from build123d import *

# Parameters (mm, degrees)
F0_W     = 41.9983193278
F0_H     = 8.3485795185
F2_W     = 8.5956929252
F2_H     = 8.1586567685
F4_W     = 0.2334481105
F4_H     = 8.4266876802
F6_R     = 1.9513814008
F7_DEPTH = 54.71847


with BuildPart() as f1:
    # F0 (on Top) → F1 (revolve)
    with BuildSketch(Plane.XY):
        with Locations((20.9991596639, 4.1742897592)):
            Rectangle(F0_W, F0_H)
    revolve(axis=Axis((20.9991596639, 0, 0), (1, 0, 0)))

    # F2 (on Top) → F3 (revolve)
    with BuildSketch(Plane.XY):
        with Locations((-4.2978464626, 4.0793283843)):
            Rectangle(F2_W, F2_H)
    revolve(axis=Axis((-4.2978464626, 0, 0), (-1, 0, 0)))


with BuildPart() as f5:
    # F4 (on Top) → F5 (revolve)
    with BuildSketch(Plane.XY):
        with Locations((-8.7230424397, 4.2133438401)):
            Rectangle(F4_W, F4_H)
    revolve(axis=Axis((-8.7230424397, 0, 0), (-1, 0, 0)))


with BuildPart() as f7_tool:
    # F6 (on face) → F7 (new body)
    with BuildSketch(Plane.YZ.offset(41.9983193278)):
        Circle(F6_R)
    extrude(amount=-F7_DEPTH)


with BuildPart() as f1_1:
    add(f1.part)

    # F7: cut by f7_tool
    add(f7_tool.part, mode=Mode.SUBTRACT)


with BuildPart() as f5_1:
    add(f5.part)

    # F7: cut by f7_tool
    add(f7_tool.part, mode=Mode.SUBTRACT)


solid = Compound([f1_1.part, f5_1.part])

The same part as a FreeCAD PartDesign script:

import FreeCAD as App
import Part
import Sketcher


def add_polygon(sketch, points):
    """Adds a closed chain of lines whose ends are joined by coincident constraints."""
    first, n = sketch.GeometryCount, len(points)
    for a, b in zip(points, points[1:] + points[:1]):
        sketch.addGeometry(Part.LineSegment(App.Vector(*a, 0), App.Vector(*b, 0)), False)
    for i in range(n):
        sketch.addConstraint(Sketcher.Constraint("Coincident", first + i, 2, first + (i + 1) % n, 1))

doc = App.newDocument("Part")
body = doc.addObject("PartDesign::Body", "Body")

sketch1 = body.newObject("Sketcher::SketchObject", "Sketch")
sketch1.AttachmentSupport = (doc.getObject("XY_Plane"), [""])
sketch1.MapMode = "FlatFace"
add_polygon(sketch1, [(0, 8.34858), (0, 0), (41.998319, 0), (41.998319, 8.34858)])
sketch1.addConstraint(Sketcher.Constraint("Vertical", 0))
sketch1.addConstraint(Sketcher.Constraint("Horizontal", 1))
sketch1.addConstraint(Sketcher.Constraint("Vertical", 2))
sketch1.addConstraint(Sketcher.Constraint("Horizontal", 3))
sketch1.addConstraint(Sketcher.Constraint("Coincident", 0, 2, -1, 1))
sketch1.addConstraint(Sketcher.Constraint("DistanceX", 1, 1, 1, 2, 41.998319))
sketch1.addConstraint(Sketcher.Constraint("DistanceY", 0, 2, 0, 1, 8.34858))
revolution = body.newObject("PartDesign::Revolution", "Revolution")
revolution.Profile = sketch1
revolution.ReferenceAxis = (sketch1, ["H_Axis"])
revolution.Angle = 360

sketch2 = body.newObject("Sketcher::SketchObject", "Sketch001")
sketch2.AttachmentSupport = (doc.getObject("XY_Plane"), [""])
sketch2.MapMode = "FlatFace"
add_polygon(sketch2, [(-8.595693, 8.158657), (-8.595693, 0), (0, 0), (0, 8.158657)])
sketch2.addConstraint(Sketcher.Constraint("Vertical", 0))
sketch2.addConstraint(Sketcher.Constraint("Horizontal", 1))
sketch2.addConstraint(Sketcher.Constraint("Vertical", 2))
sketch2.addConstraint(Sketcher.Constraint("Horizontal", 3))
sketch2.addConstraint(Sketcher.Constraint("Coincident", 1, 2, -1, 1))
sketch2.addConstraint(Sketcher.Constraint("DistanceX", 1, 1, 1, 2, 8.595693))
sketch2.addConstraint(Sketcher.Constraint("DistanceY", 0, 2, 0, 1, 8.158657))
revolution2 = body.newObject("PartDesign::Revolution", "Revolution001")
revolution2.Profile = sketch2
revolution2.ReferenceAxis = (sketch2, ["H_Axis"])
revolution2.Angle = 360
body2 = doc.addObject("PartDesign::Body", "Body001")

sketch3 = body2.newObject("Sketcher::SketchObject", "Sketch002")
sketch3.AttachmentSupport = (doc.getObject("XY_Plane001"), [""])
sketch3.MapMode = "FlatFace"
add_polygon(sketch3, [(-8.839766, 8.426688), (-8.839766, 0), (-8.606318, 0), (-8.606318, 8.426688)])
sketch3.addConstraint(Sketcher.Constraint("Vertical", 0))
sketch3.addConstraint(Sketcher.Constraint("Horizontal", 1))
sketch3.addConstraint(Sketcher.Constraint("Vertical", 2))
sketch3.addConstraint(Sketcher.Constraint("Horizontal", 3))
sketch3.addConstraint(Sketcher.Constraint("PointOnObject", 0, 2, -1))
sketch3.addConstraint(Sketcher.Constraint("DistanceX", 1, 1, 1, 2, 0.233448))
sketch3.addConstraint(Sketcher.Constraint("DistanceY", 0, 2, 0, 1, 8.426688))
sketch3.addConstraint(Sketcher.Constraint("DistanceX", 1, 2, -1, 1, 8.606318))
revolution3 = body2.newObject("PartDesign::Revolution", "Revolution002")
revolution3.Profile = sketch3
revolution3.ReferenceAxis = (sketch3, ["H_Axis"])
revolution3.Angle = 360
body3 = doc.addObject("PartDesign::Body", "Body002")

sketch4 = body3.newObject("Sketcher::SketchObject", "Sketch003")
sketch4.AttachmentSupport = (doc.getObject("YZ_Plane002"), [""])
sketch4.MapMode = "FlatFace"
sketch4.AttachmentOffset = App.Placement(App.Vector(0, 0, 41.998319), App.Rotation())
sketch4.addGeometry(Part.Circle(App.Vector(0, 0, 0), App.Vector(0, 0, 1), 1.951381), False)
sketch4.addConstraint(Sketcher.Constraint("Coincident", 0, 3, -1, 1))
sketch4.addConstraint(Sketcher.Constraint("Diameter", 0, 3.902763))
pad1 = body3.newObject("PartDesign::Pad", "Pad")
pad1.Profile = sketch4
pad1.Length = 54.71847
pad1.Reversed = True
doc.recompute()

body4 = doc.addObject("PartDesign::Body", "Body003")
body4.BaseFeature = body3
boolean = body.newObject("PartDesign::Boolean", "Boolean")
boolean.Type = "Cut"
boolean.addObjects([body4])
doc.recompute()

boolean2 = body2.newObject("PartDesign::Boolean", "Boolean001")
boolean2.Type = "Cut"
boolean2.addObjects([body3])

doc.recompute()
